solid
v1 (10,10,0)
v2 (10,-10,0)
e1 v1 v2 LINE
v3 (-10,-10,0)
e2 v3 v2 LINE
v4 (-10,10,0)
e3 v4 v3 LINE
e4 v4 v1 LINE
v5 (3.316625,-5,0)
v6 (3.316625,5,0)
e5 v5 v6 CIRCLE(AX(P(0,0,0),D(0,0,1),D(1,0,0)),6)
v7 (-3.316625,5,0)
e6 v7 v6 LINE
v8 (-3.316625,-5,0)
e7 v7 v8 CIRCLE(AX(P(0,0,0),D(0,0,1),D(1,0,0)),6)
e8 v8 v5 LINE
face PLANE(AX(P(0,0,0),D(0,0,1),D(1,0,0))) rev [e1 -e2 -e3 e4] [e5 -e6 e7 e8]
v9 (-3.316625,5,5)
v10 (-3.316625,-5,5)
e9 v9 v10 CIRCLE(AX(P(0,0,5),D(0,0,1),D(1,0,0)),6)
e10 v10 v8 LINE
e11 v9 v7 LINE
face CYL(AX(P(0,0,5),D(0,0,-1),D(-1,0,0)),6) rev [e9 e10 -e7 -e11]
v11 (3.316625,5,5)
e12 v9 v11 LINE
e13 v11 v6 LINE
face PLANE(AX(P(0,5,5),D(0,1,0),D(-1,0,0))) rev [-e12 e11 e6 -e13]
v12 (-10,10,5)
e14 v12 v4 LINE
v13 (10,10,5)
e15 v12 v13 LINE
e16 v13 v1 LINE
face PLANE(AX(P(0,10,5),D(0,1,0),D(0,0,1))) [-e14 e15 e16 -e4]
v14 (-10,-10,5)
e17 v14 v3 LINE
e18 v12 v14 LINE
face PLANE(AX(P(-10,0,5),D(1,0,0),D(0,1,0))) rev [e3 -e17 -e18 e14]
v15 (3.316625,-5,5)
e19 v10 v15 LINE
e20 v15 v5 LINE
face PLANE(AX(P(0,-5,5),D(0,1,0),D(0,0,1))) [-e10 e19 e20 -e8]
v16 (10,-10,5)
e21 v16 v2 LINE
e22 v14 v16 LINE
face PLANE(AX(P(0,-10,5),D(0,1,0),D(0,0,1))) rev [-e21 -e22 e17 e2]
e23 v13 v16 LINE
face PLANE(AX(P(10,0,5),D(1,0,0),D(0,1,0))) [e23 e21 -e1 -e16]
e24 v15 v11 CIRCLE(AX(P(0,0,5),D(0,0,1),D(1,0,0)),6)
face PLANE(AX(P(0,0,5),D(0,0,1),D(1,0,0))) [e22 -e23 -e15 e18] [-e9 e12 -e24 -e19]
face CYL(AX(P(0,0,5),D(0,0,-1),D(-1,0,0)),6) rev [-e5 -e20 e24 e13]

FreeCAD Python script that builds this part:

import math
import FreeCAD as App
import Part
import Sketcher
Q = App.Units.Quantity

doc = App.newDocument("Part")
body = doc.addObject("PartDesign::Body", "Body")

sketch1 = body.newObject("Sketcher::SketchObject", "Sketch")
sketch1.AttachmentSupport = (doc.getObject("XY_Plane"), [""])
sketch1.MapMode = "FlatFace"
sketch1.addGeometry([
    Part.LineSegment(App.Vector(-10, 10, 0), App.Vector(-10, -10, 0)),
    Part.LineSegment(App.Vector(-10, -10, 0), App.Vector(10, -10, 0)),
    Part.LineSegment(App.Vector(10, -10, 0), App.Vector(10, 10, 0)),
    Part.LineSegment(App.Vector(10, 10, 0), App.Vector(-10, 10, 0)),
    Part.ArcOfCircle(Part.Circle(App.Vector(0, 0, 0), App.Vector(0, 0, 1), 6), math.radians(-56), math.radians(56)),
    Part.LineSegment(App.Vector(3, -5, 0), App.Vector(-3, -5, 0)),
    Part.ArcOfCircle(Part.Circle(App.Vector(0, 0, 0), App.Vector(0, 0, 1), 6), math.radians(124), math.radians(236)),
    Part.LineSegment(App.Vector(-3, 5, 0), App.Vector(3, 5, 0)),
], False)
sketch1.addConstraint([
    Sketcher.Constraint("Coincident", 0, 2, 1, 1),
    Sketcher.Constraint("Coincident", 1, 2, 2, 1),
    Sketcher.Constraint("Coincident", 2, 2, 3, 1),
    Sketcher.Constraint("Coincident", 3, 2, 0, 1),
    Sketcher.Constraint("Coincident", 4, 1, 5, 1),
    Sketcher.Constraint("Coincident", 5, 2, 6, 2),
    Sketcher.Constraint("Coincident", 6, 1, 7, 1),
    Sketcher.Constraint("Coincident", 7, 2, 4, 2),
    Sketcher.Constraint("Vertical", 0),
    Sketcher.Constraint("Horizontal", 1),
    Sketcher.Constraint("Vertical", 2),
    Sketcher.Constraint("Horizontal", 3),
    Sketcher.Constraint("Horizontal", 5),
    Sketcher.Constraint("Horizontal", 7),
    Sketcher.Constraint("Coincident", 4, 3, -1, 1),
    Sketcher.Constraint("Coincident", 6, 3, -1, 1),
    Sketcher.Constraint("Equal", 4, 6),
    Sketcher.Constraint("Symmetric", 0, 2, 2, 2, -1, 1),
    Sketcher.Constraint("Vertical", 5, 2, 6, 1),
    Sketcher.Constraint("Equal", 3, 0),
    Sketcher.Constraint("Radius", 4, Q("6 mm")),
    Sketcher.Constraint("DistanceX", 1, 1, 1, 2, Q("20 mm")),
    Sketcher.Constraint("DistanceY", 4, 1, -1, 1, Q("5 mm")),
])
pad1 = body.newObject("PartDesign::Pad", "Pad")
pad1.Profile = sketch1
pad1.Length = 5

doc.recompute()
